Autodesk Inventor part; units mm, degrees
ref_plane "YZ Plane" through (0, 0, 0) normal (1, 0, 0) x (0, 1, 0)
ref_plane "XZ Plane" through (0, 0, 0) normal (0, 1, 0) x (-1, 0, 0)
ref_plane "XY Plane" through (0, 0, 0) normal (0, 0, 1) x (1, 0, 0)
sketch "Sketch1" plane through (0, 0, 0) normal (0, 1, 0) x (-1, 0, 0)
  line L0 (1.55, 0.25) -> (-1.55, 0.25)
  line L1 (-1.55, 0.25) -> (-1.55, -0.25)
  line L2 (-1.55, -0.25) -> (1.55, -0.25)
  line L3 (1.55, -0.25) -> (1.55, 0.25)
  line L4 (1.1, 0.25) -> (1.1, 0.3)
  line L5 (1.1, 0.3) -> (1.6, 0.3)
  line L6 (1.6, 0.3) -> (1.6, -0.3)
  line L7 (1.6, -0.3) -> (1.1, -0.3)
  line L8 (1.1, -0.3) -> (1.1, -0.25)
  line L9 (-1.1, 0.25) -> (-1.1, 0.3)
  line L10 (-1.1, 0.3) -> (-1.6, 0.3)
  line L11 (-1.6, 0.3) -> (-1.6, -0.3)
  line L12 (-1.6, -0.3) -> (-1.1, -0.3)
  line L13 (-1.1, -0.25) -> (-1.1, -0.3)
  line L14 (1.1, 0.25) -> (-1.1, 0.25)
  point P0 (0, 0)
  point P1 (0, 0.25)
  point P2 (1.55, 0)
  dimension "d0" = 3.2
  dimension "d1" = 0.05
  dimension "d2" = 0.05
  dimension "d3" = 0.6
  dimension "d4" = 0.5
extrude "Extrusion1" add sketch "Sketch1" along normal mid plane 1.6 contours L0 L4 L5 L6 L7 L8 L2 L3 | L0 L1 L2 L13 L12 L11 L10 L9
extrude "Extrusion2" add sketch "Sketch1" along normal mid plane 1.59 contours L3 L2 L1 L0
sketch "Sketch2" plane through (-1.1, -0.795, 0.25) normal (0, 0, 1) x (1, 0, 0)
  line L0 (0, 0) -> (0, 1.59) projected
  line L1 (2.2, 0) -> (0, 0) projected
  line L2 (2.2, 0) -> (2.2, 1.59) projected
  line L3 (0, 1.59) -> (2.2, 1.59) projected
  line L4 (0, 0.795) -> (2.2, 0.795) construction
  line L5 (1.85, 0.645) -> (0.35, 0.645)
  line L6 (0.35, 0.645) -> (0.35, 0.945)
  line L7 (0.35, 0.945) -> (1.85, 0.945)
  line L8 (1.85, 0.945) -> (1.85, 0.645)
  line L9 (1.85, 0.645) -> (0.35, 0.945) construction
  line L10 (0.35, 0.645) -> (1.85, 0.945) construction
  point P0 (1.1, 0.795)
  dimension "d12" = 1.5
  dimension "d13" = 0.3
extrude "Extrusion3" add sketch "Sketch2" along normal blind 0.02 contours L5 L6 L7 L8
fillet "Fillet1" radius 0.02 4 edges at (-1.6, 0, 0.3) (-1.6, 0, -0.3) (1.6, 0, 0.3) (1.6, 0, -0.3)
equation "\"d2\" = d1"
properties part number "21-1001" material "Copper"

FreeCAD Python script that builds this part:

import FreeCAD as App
import Part
import Sketcher
from FreeCAD import Vector


def edges_at(feature, points):
    """Names of the edges that pass closest to the given points."""
    edges = feature.Shape.Edges
    near = lambda p: min(range(len(edges)), key=lambda i: edges[i].distToShape(Part.Vertex(*p))[0])
    return sorted({f"Edge{near(p) + 1}" for p in points})


def add_polygon(sketch, points):
    """Adds a closed chain of lines whose ends are joined by coincident constraints."""
    first, n = sketch.GeometryCount, len(points)
    for a, b in zip(points, points[1:] + points[:1]):
        sketch.addGeometry(Part.LineSegment(App.Vector(*a, 0), App.Vector(*b, 0)), False)
    for i in range(n):
        sketch.addConstraint(Sketcher.Constraint("Coincident", first + i, 2, first + (i + 1) % n, 1))

doc = App.newDocument("Part")
body = doc.addObject("PartDesign::Body", "Body")
body.AllowCompound = True

# Sketch on XZ plane
sketch1 = body.newObject("Sketcher::SketchObject", "Sketch")
sketch1.AttachmentSupport = (doc.getObject("XZ_Plane"), [""])
sketch1.MapMode = "FlatFace"
add_polygon(sketch1, [(-1.1, 0.25), (-1.55, 0.25), (-1.55, -0.25), (-1.1, -0.25), (-1.1, -0.3), (-1.6, -0.3), (-1.6, 0.3), (-1.1, 0.3)])  # lines 0-7
add_polygon(sketch1, [(1.55, 0.25), (1.1, 0.25), (1.1, 0.3), (1.6, 0.3), (1.6, -0.3), (1.1, -0.3), (1.1, -0.25), (1.55, -0.25)])  # lines 8-15
sketch1.addConstraint([
    Sketcher.Constraint("Horizontal", 0),
    Sketcher.Constraint("Vertical", 1),
    Sketcher.Constraint("Horizontal", 2),
    Sketcher.Constraint("Vertical", 3),
    Sketcher.Constraint("Horizontal", 4),
    Sketcher.Constraint("Vertical", 5),
    Sketcher.Constraint("Horizontal", 6),
    Sketcher.Constraint("Vertical", 7),
    Sketcher.Constraint("Horizontal", 8),
    Sketcher.Constraint("Vertical", 9),
    Sketcher.Constraint("Horizontal", 10),
    Sketcher.Constraint("Vertical", 11),
    Sketcher.Constraint("Horizontal", 12),
    Sketcher.Constraint("Vertical", 13),
    Sketcher.Constraint("Horizontal", 14),
    Sketcher.Constraint("Vertical", 15),
    Sketcher.Constraint("Symmetric", 2, 2, 8, 2, -1, 1),
    Sketcher.Constraint("Symmetric", 4, 2, 10, 2, -1, 1),
    Sketcher.Constraint("Symmetric", 6, 2, 12, 2, -1, 1),
    Sketcher.Constraint("Symmetric", 0, 2, 14, 2, -1, 1),
    Sketcher.Constraint("Symmetric", 7, 2, 8, 2, -2),
    Sketcher.Constraint("Horizontal", 6, 2, 9, 2),
    Sketcher.Constraint("Equal", 12, 1),
    Sketcher.Constraint("DistanceX", 4, 2, 4, 1, 0.5),
    Sketcher.Constraint("DistanceY", 5, 1, 5, 2, 0.6),
    Sketcher.Constraint("DistanceX", 4, 2, 1, 2, 0.05),
    Sketcher.Constraint("DistanceX", 2, 2, -1, 1, 1.1),
])
pad1 = body.newObject("PartDesign::Pad", "Pad")
pad1.Profile = sketch1
pad1.Length = 1.6
pad1.Midplane = True

# Sketch on XZ plane
sketch2 = body.newObject("Sketcher::SketchObject", "Sketch001")
sketch2.AttachmentSupport = (doc.getObject("XZ_Plane"), [""])
sketch2.MapMode = "FlatFace"
add_polygon(sketch2, [(-1.6, -0.2), (-1.6, 0.2), (1.6, 0.2), (1.6, -0.2)])  # lines 0-3
sketch2.addConstraint([
    Sketcher.Constraint("Vertical", 0),
    Sketcher.Constraint("Horizontal", 1),
    Sketcher.Constraint("Vertical", 2),
    Sketcher.Constraint("Horizontal", 3),
    Sketcher.Constraint("Symmetric", 0, 2, 2, 2, -1, 1),
    Sketcher.Constraint("DistanceY", 0, 1, 0, 2, 0.5),
    Sketcher.Constraint("DistanceX", 1, 1, 1, 2, 3.1),
])
pad2 = body.newObject("PartDesign::Pad", "Pad001")
pad2.Profile = sketch2
pad2.Length = 1.59
pad2.Midplane = True

# Sketch on XY plane
sketch3 = body.newObject("Sketcher::SketchObject", "Sketch002")
sketch3.AttachmentSupport = (doc.getObject("XY_Plane"), [""])
sketch3.MapMode = "FlatFace"
sketch3.AttachmentOffset = App.Placement(Vector(0, 0, 0.25), App.Rotation())
add_polygon(sketch3, [(-0.75, -0.15), (0.75, -0.15), (0.75, 0.15), (-0.75, 0.15)])  # lines 0-3
sketch3.addConstraint([
    Sketcher.Constraint("Horizontal", 0),
    Sketcher.Constraint("Vertical", 1),
    Sketcher.Constraint("Horizontal", 2),
    Sketcher.Constraint("Vertical", 3),
    Sketcher.Constraint("Symmetric", 0, 2, 2, 2, -1, 1),
    Sketcher.Constraint("DistanceX", 0, 1, 0, 2, 1.5),
    Sketcher.Constraint("DistanceY", 1, 1, 1, 2, 0.3),
])
pad3 = body.newObject("PartDesign::Pad", "Pad002")
pad3.Profile = sketch3
pad3.Length = 0.02
doc.recompute()

fillet = body.newObject("PartDesign::Fillet", "Fillet")
fillet.Base = (pad3, edges_at(pad3, [
    (-1.6, 0, 0.3),
    (-1.6, 0, -0.3),
    (1.6, 0, 0.3),
    (1.6, 0, -0.3),
]))
fillet.Radius = 0.02

doc.recompute()
